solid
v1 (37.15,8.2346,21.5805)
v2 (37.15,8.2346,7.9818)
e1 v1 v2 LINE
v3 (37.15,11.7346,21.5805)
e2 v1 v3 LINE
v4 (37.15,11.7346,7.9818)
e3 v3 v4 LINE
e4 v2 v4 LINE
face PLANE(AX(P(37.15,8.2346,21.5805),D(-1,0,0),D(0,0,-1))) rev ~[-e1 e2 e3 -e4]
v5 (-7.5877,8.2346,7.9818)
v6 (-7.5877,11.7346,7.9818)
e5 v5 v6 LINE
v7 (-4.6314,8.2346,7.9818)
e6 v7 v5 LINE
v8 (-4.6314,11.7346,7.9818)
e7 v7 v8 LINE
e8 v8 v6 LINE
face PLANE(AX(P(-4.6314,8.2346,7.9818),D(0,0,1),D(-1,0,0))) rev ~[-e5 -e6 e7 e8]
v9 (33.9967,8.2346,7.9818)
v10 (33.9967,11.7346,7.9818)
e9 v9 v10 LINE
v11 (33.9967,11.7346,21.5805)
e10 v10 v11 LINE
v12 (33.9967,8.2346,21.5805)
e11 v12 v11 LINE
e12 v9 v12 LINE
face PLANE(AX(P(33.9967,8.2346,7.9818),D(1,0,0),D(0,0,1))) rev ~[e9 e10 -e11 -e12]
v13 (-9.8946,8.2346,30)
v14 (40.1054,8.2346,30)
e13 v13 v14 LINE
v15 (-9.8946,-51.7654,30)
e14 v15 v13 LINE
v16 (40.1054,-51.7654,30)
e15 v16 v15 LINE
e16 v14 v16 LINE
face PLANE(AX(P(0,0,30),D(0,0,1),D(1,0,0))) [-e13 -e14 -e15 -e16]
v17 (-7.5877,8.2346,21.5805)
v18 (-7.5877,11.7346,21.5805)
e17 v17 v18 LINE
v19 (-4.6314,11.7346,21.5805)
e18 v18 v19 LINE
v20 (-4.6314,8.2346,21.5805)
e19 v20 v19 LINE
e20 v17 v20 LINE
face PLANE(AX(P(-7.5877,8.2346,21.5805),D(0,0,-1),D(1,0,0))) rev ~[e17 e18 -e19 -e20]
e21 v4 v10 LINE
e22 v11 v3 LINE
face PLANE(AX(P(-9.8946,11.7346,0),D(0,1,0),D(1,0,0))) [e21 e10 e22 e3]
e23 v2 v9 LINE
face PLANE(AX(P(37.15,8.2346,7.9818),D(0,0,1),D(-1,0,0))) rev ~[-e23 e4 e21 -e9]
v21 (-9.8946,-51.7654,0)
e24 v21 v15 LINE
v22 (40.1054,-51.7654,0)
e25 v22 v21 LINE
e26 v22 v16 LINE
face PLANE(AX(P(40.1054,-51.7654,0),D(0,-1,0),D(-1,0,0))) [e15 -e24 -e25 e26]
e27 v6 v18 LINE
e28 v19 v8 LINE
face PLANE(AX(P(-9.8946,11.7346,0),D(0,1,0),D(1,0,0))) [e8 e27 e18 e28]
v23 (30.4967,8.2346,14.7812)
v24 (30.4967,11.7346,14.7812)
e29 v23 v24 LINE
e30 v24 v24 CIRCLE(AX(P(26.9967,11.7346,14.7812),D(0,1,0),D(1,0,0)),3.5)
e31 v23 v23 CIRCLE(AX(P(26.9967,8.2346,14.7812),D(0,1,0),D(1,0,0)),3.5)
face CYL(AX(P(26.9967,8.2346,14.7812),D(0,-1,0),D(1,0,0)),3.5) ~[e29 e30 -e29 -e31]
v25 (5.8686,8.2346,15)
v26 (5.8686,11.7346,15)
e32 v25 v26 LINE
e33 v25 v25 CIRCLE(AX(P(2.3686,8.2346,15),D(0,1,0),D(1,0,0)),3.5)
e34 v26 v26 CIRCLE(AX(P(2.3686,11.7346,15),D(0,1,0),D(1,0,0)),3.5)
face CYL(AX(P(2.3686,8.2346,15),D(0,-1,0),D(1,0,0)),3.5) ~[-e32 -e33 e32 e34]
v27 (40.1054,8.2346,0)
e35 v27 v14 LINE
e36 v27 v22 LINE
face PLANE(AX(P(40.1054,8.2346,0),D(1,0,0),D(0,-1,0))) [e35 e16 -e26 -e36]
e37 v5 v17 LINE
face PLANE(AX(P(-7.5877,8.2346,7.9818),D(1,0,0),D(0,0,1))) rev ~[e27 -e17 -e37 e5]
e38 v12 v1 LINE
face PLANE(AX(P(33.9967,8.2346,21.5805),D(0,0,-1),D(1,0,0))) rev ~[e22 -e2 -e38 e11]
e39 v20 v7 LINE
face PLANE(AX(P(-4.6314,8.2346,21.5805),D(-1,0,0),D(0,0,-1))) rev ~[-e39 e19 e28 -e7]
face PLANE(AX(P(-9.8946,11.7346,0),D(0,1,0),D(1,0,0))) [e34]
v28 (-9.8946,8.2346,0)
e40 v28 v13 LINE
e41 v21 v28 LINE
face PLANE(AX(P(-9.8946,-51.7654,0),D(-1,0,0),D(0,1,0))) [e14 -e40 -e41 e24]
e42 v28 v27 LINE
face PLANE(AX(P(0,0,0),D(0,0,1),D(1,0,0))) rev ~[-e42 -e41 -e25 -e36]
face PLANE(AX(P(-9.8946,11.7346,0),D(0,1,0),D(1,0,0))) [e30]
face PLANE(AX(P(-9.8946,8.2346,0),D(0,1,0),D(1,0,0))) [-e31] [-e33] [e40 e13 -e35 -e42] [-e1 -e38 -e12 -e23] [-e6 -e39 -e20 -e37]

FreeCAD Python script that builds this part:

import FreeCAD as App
import Part
import Sketcher
from FreeCAD import Vector
Q = App.Units.Quantity

doc = App.newDocument("Part")
body = doc.addObject("PartDesign::Body", "Body")

sketch1 = body.newObject("Sketcher::SketchObject", "Sketch")
sketch1.AttachmentSupport = (doc.getObject("XY_Plane"), [""])
sketch1.MapMode = "FlatFace"
sketch1.addGeometry(Part.LineSegment(Vector(40, 8, 0), Vector(-10, 8, 0)), False)
sketch1.addGeometry(Part.LineSegment(Vector(-10, 8, 0), Vector(-10, -52, 0)), False)
sketch1.addGeometry(Part.LineSegment(Vector(-10, -52, 0), Vector(40, -52, 0)), False)
sketch1.addGeometry(Part.LineSegment(Vector(40, -52, 0), Vector(40, 8, 0)), False)
sketch1.addConstraint(Sketcher.Constraint("Coincident", 0, 2, 1, 1))
sketch1.addConstraint(Sketcher.Constraint("Coincident", 1, 2, 2, 1))
sketch1.addConstraint(Sketcher.Constraint("Coincident", 2, 2, 3, 1))
sketch1.addConstraint(Sketcher.Constraint("Coincident", 3, 2, 0, 1))
sketch1.addConstraint(Sketcher.Constraint("Horizontal", 0))
sketch1.addConstraint(Sketcher.Constraint("Vertical", 1))
sketch1.addConstraint(Sketcher.Constraint("Horizontal", 2))
sketch1.addConstraint(Sketcher.Constraint("Vertical", 3))
sketch1.addConstraint(Sketcher.Constraint("DistanceX", 0, 2, 0, 1, Q("50 mm")))
sketch1.addConstraint(Sketcher.Constraint("DistanceY", 1, 2, 1, 1, Q("60 mm")))
sketch1.addConstraint(Sketcher.Constraint("DistanceX", 0, 2, -1, 1, Q("9.8946 mm")))
sketch1.addConstraint(Sketcher.Constraint("DistanceY", -1, 1, 0, 2, Q("8.2346 mm")))
pad1 = body.newObject("PartDesign::Pad", "Pad")
pad1.Profile = sketch1
pad1.Length = 30

sketch2 = body.newObject("Sketcher::SketchObject", "Sketch001")
sketch2.AttachmentSupport = (doc.getObject("XZ_Plane"), [""])
sketch2.MapMode = "FlatFace"
sketch2.AttachmentOffset = App.Placement(Vector(0, 0, -8.2346), App.Rotation())
sketch2.addGeometry(Part.LineSegment(Vector(-7.6, 8, 0), Vector(-7.6, 21.6, 0)), False)
sketch2.addGeometry(Part.LineSegment(Vector(-7.6, 21.6, 0), Vector(-4.6, 21.6, 0)), False)
sketch2.addGeometry(Part.LineSegment(Vector(-4.6, 21.6, 0), Vector(-4.6, 8, 0)), False)
sketch2.addGeometry(Part.LineSegment(Vector(-4.6, 8, 0), Vector(-7.6, 8, 0)), False)
sketch2.addGeometry(Part.LineSegment(Vector(34, 8, 0), Vector(34, 21.6, 0)), False)
sketch2.addGeometry(Part.LineSegment(Vector(34, 21.6, 0), Vector(37.1, 21.6, 0)), False)
sketch2.addGeometry(Part.LineSegment(Vector(37.1, 21.6, 0), Vector(37.1, 8, 0)), False)
sketch2.addGeometry(Part.LineSegment(Vector(37.1, 8, 0), Vector(34, 8, 0)), False)
sketch2.addConstraint(Sketcher.Constraint("Coincident", 0, 2, 1, 1))
sketch2.addConstraint(Sketcher.Constraint("Coincident", 1, 2, 2, 1))
sketch2.addConstraint(Sketcher.Constraint("Coincident", 2, 2, 3, 1))
sketch2.addConstraint(Sketcher.Constraint("Coincident", 3, 2, 0, 1))
sketch2.addConstraint(Sketcher.Constraint("Coincident", 4, 2, 5, 1))
sketch2.addConstraint(Sketcher.Constraint("Coincident", 5, 2, 6, 1))
sketch2.addConstraint(Sketcher.Constraint("Coincident", 6, 2, 7, 1))
sketch2.addConstraint(Sketcher.Constraint("Coincident", 7, 2, 4, 1))
sketch2.addConstraint(Sketcher.Constraint("Vertical", 0))
sketch2.addConstraint(Sketcher.Constraint("Horizontal", 1))
sketch2.addConstraint(Sketcher.Constraint("Vertical", 2))
sketch2.addConstraint(Sketcher.Constraint("Horizontal", 3))
sketch2.addConstraint(Sketcher.Constraint("Vertical", 4))
sketch2.addConstraint(Sketcher.Constraint("Horizontal", 5))
sketch2.addConstraint(Sketcher.Constraint("Vertical", 6))
sketch2.addConstraint(Sketcher.Constraint("Horizontal", 7))
sketch2.addConstraint(Sketcher.Constraint("Horizontal", 1, 2, 4, 2))
sketch2.addConstraint(Sketcher.Constraint("Horizontal", 3, 2, 6, 2))
sketch2.addConstraint(Sketcher.Constraint("DistanceX", -1, 1, 5, 2, Q("37.15 mm")))
sketch2.addConstraint(Sketcher.Constraint("DistanceX", 1, 1, 1, 2, Q("2.9563 mm")))
sketch2.addConstraint(Sketcher.Constraint("DistanceX", 5, 1, 5, 2, Q("3.1533 mm")))
sketch2.addConstraint(Sketcher.Constraint("DistanceY", 0, 1, 0, 2, Q("13.5987 mm")))
sketch2.addConstraint(Sketcher.Constraint("DistanceX", 1, 2, 4, 2, Q("38.628 mm")))
sketch2.addConstraint(Sketcher.Constraint("DistanceY", -1, 1, 0, 2, Q("21.5805 mm")))
pad2 = body.newObject("PartDesign::Pad", "Pad001")
pad2.Profile = sketch2
pad2.Length = 3.5
pad2.Reversed = True

sketch3 = body.newObject("Sketcher::SketchObject", "Sketch002")
sketch3.AttachmentSupport = (doc.getObject("XZ_Plane"), [""])
sketch3.MapMode = "FlatFace"
sketch3.AttachmentOffset = App.Placement(Vector(0, 0, -8.2346), App.Rotation())
sketch3.addGeometry(Part.Circle(Vector(2.4, 15, 0), Vector(0, 0, 1), 3.5), False)
sketch3.addGeometry(Part.Circle(Vector(27, 14.8, 0), Vector(0, 0, 1), 3.5), False)
sketch3.addConstraint(Sketcher.Constraint("Equal", 0, 1))
sketch3.addConstraint(Sketcher.Constraint("Diameter", 0, Q("7 mm")))
sketch3.addConstraint(Sketcher.Constraint("DistanceY", -1, 1, 0, 3, Q("15 mm")))
sketch3.addConstraint(Sketcher.Constraint("DistanceX", 0, 3, 1, 3, Q("24.628 mm")))
sketch3.addConstraint(Sketcher.Constraint("DistanceX", -1, 1, 0, 3, Q("2.3686 mm")))
sketch3.addConstraint(Sketcher.Constraint("DistanceY", -1, 1, 1, 3, Q("14.7812 mm")))
pad3 = body.newObject("PartDesign::Pad", "Pad002")
pad3.Profile = sketch3
pad3.Length = 3.5
pad3.Reversed = True

doc.recompute()
